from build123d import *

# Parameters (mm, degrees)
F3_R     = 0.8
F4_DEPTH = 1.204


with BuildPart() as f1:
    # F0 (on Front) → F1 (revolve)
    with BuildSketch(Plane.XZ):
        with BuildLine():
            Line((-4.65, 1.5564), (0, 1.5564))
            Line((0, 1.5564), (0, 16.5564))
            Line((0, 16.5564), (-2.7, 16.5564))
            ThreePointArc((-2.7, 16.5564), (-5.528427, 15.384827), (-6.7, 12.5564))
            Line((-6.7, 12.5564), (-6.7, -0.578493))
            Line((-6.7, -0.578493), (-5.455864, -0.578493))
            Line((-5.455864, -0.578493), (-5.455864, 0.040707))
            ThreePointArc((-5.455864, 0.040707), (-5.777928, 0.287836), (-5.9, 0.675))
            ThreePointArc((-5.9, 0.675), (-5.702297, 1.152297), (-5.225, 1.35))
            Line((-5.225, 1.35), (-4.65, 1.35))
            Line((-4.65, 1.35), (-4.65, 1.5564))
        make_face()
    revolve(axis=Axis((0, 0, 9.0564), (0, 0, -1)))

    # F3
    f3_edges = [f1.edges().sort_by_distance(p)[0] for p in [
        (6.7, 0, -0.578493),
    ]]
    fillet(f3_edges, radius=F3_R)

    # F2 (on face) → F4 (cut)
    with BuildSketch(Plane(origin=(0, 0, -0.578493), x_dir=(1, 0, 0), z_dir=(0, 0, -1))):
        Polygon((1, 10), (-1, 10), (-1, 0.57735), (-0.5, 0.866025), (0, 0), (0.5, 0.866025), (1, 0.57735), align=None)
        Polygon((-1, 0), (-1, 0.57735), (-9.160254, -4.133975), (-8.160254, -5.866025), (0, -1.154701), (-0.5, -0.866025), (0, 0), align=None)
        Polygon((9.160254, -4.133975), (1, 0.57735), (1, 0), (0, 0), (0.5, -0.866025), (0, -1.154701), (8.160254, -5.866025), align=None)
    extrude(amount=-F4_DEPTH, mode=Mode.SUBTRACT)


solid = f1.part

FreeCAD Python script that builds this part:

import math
import FreeCAD as App
import Part
import Sketcher
from FreeCAD import Vector
Q = App.Units.Quantity


def edges_at(feature, points):
    """Names of the edges that pass closest to the given points."""
    edges = feature.Shape.Edges
    near = lambda p: min(range(len(edges)), key=lambda i: edges[i].distToShape(Part.Vertex(*p))[0])
    return sorted({f"Edge{near(p) + 1}" for p in points})


def add_polygon(sketch, points):
    """Adds a closed chain of lines whose ends are joined by coincident constraints."""
    first, n = sketch.GeometryCount, len(points)
    for a, b in zip(points, points[1:] + points[:1]):
        sketch.addGeometry(Part.LineSegment(App.Vector(*a, 0), App.Vector(*b, 0)), False)
    for i in range(n):
        sketch.addConstraint(Sketcher.Constraint("Coincident", first + i, 2, first + (i + 1) % n, 1))

doc = App.newDocument("Part")
params = doc.addObject("Spreadsheet::Sheet", "Params")
for row, (alias, value) in enumerate([
    ("sketch1_radius", "4 mm"),
    ("sketch1_height", "15 mm"),
    ("sketch1_width", "2.7 mm"),
    ("sketch1_width2", "4.65 mm"),
    ("revolution_angle", "360 deg"),
    ("fillet_radius", "0.8 mm"),
    ("sketch2_width", "2 mm"),
    ("pocket1_length", "1.204 mm"),
], start=1):
    params.set(f"A{row}", alias)
    params.set(f"B{row}", "=" + value)
    params.setAlias(f"B{row}", alias)

body = doc.addObject("PartDesign::Body", "Body")

# Sketch on XZ plane
sketch1 = body.newObject("Sketcher::SketchObject", "Sketch")
sketch1.AttachmentSupport = (doc.getObject("XZ_Plane"), [""])
sketch1.MapMode = "FlatFace"
sketch1.addGeometry([
    Part.LineSegment(Vector(-4.65, 1.56, 0), Vector(0, 1.56, 0)),  # 0
    Part.LineSegment(Vector(0, 1.56, 0), Vector(0, 16.56, 0)),  # 1
    Part.LineSegment(Vector(0, 16.56, 0), Vector(-2.7, 16.56, 0)),  # 2
    Part.ArcOfCircle(Part.Circle(Vector(-2.7, 12.56, 0), Vector(0, 0, 1), 4), math.radians(90), math.radians(180)),  # 3
    Part.LineSegment(Vector(-6.7, 12.56, 0), Vector(-6.7, -0.58, 0)),  # 4
    Part.LineSegment(Vector(-6.7, -0.58, 0), Vector(-5.46, -0.58, 0)),  # 5
    Part.LineSegment(Vector(-5.46, -0.58, 0), Vector(-5.46, 0.04, 0)),  # 6
    Part.ArcOfCircle(Part.Circle(Vector(-5.22, 0.67, 0), Vector(0, 0, 1), 0.68), math.radians(180), math.radians(250)),  # 7
    Part.ArcOfCircle(Part.Circle(Vector(-5.22, 0.67, 0), Vector(0, 0, 1), 0.68), math.radians(90), math.radians(180)),  # 8
    Part.LineSegment(Vector(-5.22, 1.35, 0), Vector(-4.65, 1.35, 0)),  # 9
    Part.LineSegment(Vector(-4.65, 1.35, 0), Vector(-4.65, 1.56, 0)),  # 10
], False)
sketch1.addConstraint([
    Sketcher.Constraint("Coincident", 0, 2, 1, 1),
    Sketcher.Constraint("Coincident", 1, 2, 2, 1),
    Sketcher.Constraint("Tangent", 2, 2, 3, 1),
    Sketcher.Constraint("Tangent", 3, 2, 4, 1),
    Sketcher.Constraint("Coincident", 4, 2, 5, 1),
    Sketcher.Constraint("Coincident", 5, 2, 6, 1),
    Sketcher.Constraint("Coincident", 6, 2, 7, 2),
    Sketcher.Constraint("Tangent", 7, 1, 8, 2),
    Sketcher.Constraint("Tangent", 8, 1, 9, 1),
    Sketcher.Constraint("Coincident", 9, 2, 10, 1),
    Sketcher.Constraint("Coincident", 10, 2, 0, 1),
    Sketcher.Constraint("Horizontal", 0),
    Sketcher.Constraint("Vertical", 1),
    Sketcher.Constraint("Horizontal", 2),
    Sketcher.Constraint("Vertical", 4),
    Sketcher.Constraint("Horizontal", 5),
    Sketcher.Constraint("Vertical", 6),
    Sketcher.Constraint("Horizontal", 9),
    Sketcher.Constraint("Vertical", 10),
    Sketcher.Constraint("Equal", 7, 8),
    Sketcher.Constraint("PointOnObject", 0, 2, -2),
    Sketcher.Constraint("Horizontal", 8, 3, 7, 1),
    Sketcher.Constraint("Radius", 3, 4.0),
    Sketcher.Constraint("DistanceY", 1, 1, 1, 2, 15.0),
    Sketcher.Constraint("DistanceX", 2, 2, 2, 1, 2.7),
    Sketcher.Constraint("Radius", 7, 0.675001),
    Sketcher.Constraint("DistanceX", 0, 1, 0, 2, 4.65),
    Sketcher.Constraint("DistanceX", 7, 1, -1, 1, 5.9),
    Sketcher.Constraint("DistanceY", -1, 1, 8, 1, 1.35),
    Sketcher.Constraint("DistanceY", 6, 1, 6, 2, 0.6192),
    Sketcher.Constraint("DistanceY", 10, 1, 10, 2, 0.2064),
    Sketcher.Constraint("DistanceX", 5, 1, 5, 2, 1.244136),
])
sketch1.setExpression("Constraints[22]", "Params.sketch1_radius")
sketch1.setExpression("Constraints[23]", "Params.sketch1_height")
sketch1.setExpression("Constraints[24]", "Params.sketch1_width")
sketch1.setExpression("Constraints[26]", "Params.sketch1_width2")
revolution = body.newObject("PartDesign::Revolution", "Revolution")
revolution.Profile = sketch1
revolution.ReferenceAxis = (sketch1, ["V_Axis"])
revolution.setExpression("Angle", "Params.revolution_angle")
doc.recompute()

fillet = body.newObject("PartDesign::Fillet", "Fillet")
fillet.Base = (revolution, edges_at(revolution, [(6.7, 0, -0.578)]))
fillet.setExpression("Radius", "Params.fillet_radius")

# Sketch on XY plane
sketch2 = body.newObject("Sketcher::SketchObject", "Sketch001")
sketch2.AttachmentSupport = (doc.getObject("XY_Plane"), [""])
sketch2.MapMode = "FlatFace"
sketch2.AttachmentOffset = App.Placement(Vector(0, 0, -0.578493), App.Rotation())
add_polygon(sketch2, [(1, -10), (-1, -10), (-1, -0.6), (-0.5, -0.9), (0, 0), (0.5, -0.9), (1, -0.6)])  # lines 0-6
add_polygon(sketch2, [(-1, 0), (-1, -0.6), (-9.2, 4.1), (-8.2, 5.9), (0, 1.2), (-0.5, 0.9), (0, 0)])  # lines 7-13
add_polygon(sketch2, [(9.2, 4.1), (1, -0.6), (1, 0), (0, 0), (0.5, 0.9), (0, 1.2), (8.2, 5.9)])  # lines 14-20
sketch2.addConstraint([
    Sketcher.Constraint("Horizontal", 0),
    Sketcher.Constraint("Vertical", 1),
    Sketcher.Constraint("Vertical", 6),
    Sketcher.Constraint("Vertical", 7),
    Sketcher.Constraint("Horizontal", 13),
    Sketcher.Constraint("Vertical", 15),
    Sketcher.Constraint("Horizontal", 16),
    Sketcher.Constraint("Coincident", 3, 2, -1, 1),
    Sketcher.Constraint("Coincident", 12, 2, -1, 1),
    Sketcher.Constraint("Coincident", 16, 2, -1, 1),
    Sketcher.Constraint("Coincident", 7, 2, 1, 2),
    Sketcher.Constraint("Coincident", 14, 2, 5, 2),
    Sketcher.Constraint("Coincident", 18, 2, 10, 2),
    Sketcher.Constraint("Symmetric", 4, 2, 11, 2, -1, 1),
    Sketcher.Constraint("Symmetric", 2, 2, 17, 2, -1, 1),
    Sketcher.Constraint("Symmetric", 2, 2, 4, 2, -2),
    Sketcher.Constraint("Symmetric", 1, 2, 5, 2, -2),
    Sketcher.Constraint("Symmetric", 9, 2, 19, 2, -2),
    Sketcher.Constraint("Symmetric", 8, 2, 20, 2, -2),
    Sketcher.Constraint("PointOnObject", 10, 2, -2),
    Sketcher.Constraint("Perpendicular", 2, 3),
    Sketcher.Constraint("Perpendicular", 3, 8),
    Sketcher.Constraint("Perpendicular", 8, 9),
    Sketcher.Constraint("Perpendicular", 9, 10),
    Sketcher.Constraint("Parallel", 5, 11),
    Sketcher.Constraint("Equal", 8, 10),
    Sketcher.Constraint("DistanceX", 0, 2, 0, 1, 2.0),
    Sketcher.Constraint("Angle", 2, Q("-29.999988 deg")),
    Sketcher.Constraint("DistanceY", 0, 2, -1, 1, 10.0),
    Sketcher.Constraint("DistanceY", 2, 2, 8, 2, 5.0),
])
sketch2.setExpression("Constraints[47]", "Params.sketch2_width")
pocket1 = body.newObject("PartDesign::Pocket", "Pocket")
pocket1.Profile = sketch2
pocket1.setExpression("Length", "Params.pocket1_length")
pocket1.Reversed = True

doc.recompute()
